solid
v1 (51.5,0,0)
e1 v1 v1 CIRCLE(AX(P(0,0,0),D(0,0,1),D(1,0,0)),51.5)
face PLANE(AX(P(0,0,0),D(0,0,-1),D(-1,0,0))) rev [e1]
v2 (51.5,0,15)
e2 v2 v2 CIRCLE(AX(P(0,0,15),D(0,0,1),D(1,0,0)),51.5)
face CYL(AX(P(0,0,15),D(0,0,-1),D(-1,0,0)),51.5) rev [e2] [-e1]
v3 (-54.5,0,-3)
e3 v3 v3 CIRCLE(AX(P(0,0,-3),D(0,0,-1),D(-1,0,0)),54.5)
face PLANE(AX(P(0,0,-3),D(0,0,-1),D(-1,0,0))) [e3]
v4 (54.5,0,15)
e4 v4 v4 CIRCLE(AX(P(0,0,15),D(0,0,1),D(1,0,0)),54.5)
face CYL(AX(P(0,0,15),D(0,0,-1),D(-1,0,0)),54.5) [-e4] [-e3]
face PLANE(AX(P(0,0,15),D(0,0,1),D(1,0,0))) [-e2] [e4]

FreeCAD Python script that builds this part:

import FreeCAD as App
import Part
import Sketcher

V = App.Vector

doc = App.newDocument("Part")
body = doc.addObject("PartDesign::Body", "Body")

sketch1 = body.newObject("Sketcher::SketchObject", "Sketch")
sketch1.AttachmentSupport = (doc.getObject("XY_Plane"), [""])
sketch1.MapMode = "FlatFace"
sketch1.addGeometry(Part.Circle(V(0, 0, 0), V(0, 0, 1), 54), False)
sketch1.addGeometry(Part.Circle(V(0, 0, 0), V(0, 0, 1), 52), False)
sketch1.addConstraint(Sketcher.Constraint("Coincident", 0, 3, -1, 1))
sketch1.addConstraint(Sketcher.Constraint("Coincident", 1, 3, -1, 1))
sketch1.addConstraint(Sketcher.Constraint("Diameter", 0, 109.0))
sketch1.addConstraint(Sketcher.Constraint("Diameter", 1, 103.0))
pad1 = body.newObject("PartDesign::Pad", "Pad")
pad1.Profile = sketch1
pad1.Length = 15

sketch2 = body.newObject("Sketcher::SketchObject", "Sketch001")
sketch2.AttachmentSupport = (doc.getObject("XY_Plane"), [""])
sketch2.MapMode = "FlatFace"
sketch2.AttachmentOffset = App.Placement(V(0, 0, -3), App.Rotation())
sketch2.addGeometry(Part.Circle(V(0, 0, 0), V(0, 0, 1), 54), False)
sketch2.addConstraint(Sketcher.Constraint("Coincident", 0, 3, -1, 1))
sketch2.addConstraint(Sketcher.Constraint("Diameter", 0, 109.0))
pad2 = body.newObject("PartDesign::Pad", "Pad001")
pad2.Profile = sketch2
pad2.Length = 3

doc.recompute()
